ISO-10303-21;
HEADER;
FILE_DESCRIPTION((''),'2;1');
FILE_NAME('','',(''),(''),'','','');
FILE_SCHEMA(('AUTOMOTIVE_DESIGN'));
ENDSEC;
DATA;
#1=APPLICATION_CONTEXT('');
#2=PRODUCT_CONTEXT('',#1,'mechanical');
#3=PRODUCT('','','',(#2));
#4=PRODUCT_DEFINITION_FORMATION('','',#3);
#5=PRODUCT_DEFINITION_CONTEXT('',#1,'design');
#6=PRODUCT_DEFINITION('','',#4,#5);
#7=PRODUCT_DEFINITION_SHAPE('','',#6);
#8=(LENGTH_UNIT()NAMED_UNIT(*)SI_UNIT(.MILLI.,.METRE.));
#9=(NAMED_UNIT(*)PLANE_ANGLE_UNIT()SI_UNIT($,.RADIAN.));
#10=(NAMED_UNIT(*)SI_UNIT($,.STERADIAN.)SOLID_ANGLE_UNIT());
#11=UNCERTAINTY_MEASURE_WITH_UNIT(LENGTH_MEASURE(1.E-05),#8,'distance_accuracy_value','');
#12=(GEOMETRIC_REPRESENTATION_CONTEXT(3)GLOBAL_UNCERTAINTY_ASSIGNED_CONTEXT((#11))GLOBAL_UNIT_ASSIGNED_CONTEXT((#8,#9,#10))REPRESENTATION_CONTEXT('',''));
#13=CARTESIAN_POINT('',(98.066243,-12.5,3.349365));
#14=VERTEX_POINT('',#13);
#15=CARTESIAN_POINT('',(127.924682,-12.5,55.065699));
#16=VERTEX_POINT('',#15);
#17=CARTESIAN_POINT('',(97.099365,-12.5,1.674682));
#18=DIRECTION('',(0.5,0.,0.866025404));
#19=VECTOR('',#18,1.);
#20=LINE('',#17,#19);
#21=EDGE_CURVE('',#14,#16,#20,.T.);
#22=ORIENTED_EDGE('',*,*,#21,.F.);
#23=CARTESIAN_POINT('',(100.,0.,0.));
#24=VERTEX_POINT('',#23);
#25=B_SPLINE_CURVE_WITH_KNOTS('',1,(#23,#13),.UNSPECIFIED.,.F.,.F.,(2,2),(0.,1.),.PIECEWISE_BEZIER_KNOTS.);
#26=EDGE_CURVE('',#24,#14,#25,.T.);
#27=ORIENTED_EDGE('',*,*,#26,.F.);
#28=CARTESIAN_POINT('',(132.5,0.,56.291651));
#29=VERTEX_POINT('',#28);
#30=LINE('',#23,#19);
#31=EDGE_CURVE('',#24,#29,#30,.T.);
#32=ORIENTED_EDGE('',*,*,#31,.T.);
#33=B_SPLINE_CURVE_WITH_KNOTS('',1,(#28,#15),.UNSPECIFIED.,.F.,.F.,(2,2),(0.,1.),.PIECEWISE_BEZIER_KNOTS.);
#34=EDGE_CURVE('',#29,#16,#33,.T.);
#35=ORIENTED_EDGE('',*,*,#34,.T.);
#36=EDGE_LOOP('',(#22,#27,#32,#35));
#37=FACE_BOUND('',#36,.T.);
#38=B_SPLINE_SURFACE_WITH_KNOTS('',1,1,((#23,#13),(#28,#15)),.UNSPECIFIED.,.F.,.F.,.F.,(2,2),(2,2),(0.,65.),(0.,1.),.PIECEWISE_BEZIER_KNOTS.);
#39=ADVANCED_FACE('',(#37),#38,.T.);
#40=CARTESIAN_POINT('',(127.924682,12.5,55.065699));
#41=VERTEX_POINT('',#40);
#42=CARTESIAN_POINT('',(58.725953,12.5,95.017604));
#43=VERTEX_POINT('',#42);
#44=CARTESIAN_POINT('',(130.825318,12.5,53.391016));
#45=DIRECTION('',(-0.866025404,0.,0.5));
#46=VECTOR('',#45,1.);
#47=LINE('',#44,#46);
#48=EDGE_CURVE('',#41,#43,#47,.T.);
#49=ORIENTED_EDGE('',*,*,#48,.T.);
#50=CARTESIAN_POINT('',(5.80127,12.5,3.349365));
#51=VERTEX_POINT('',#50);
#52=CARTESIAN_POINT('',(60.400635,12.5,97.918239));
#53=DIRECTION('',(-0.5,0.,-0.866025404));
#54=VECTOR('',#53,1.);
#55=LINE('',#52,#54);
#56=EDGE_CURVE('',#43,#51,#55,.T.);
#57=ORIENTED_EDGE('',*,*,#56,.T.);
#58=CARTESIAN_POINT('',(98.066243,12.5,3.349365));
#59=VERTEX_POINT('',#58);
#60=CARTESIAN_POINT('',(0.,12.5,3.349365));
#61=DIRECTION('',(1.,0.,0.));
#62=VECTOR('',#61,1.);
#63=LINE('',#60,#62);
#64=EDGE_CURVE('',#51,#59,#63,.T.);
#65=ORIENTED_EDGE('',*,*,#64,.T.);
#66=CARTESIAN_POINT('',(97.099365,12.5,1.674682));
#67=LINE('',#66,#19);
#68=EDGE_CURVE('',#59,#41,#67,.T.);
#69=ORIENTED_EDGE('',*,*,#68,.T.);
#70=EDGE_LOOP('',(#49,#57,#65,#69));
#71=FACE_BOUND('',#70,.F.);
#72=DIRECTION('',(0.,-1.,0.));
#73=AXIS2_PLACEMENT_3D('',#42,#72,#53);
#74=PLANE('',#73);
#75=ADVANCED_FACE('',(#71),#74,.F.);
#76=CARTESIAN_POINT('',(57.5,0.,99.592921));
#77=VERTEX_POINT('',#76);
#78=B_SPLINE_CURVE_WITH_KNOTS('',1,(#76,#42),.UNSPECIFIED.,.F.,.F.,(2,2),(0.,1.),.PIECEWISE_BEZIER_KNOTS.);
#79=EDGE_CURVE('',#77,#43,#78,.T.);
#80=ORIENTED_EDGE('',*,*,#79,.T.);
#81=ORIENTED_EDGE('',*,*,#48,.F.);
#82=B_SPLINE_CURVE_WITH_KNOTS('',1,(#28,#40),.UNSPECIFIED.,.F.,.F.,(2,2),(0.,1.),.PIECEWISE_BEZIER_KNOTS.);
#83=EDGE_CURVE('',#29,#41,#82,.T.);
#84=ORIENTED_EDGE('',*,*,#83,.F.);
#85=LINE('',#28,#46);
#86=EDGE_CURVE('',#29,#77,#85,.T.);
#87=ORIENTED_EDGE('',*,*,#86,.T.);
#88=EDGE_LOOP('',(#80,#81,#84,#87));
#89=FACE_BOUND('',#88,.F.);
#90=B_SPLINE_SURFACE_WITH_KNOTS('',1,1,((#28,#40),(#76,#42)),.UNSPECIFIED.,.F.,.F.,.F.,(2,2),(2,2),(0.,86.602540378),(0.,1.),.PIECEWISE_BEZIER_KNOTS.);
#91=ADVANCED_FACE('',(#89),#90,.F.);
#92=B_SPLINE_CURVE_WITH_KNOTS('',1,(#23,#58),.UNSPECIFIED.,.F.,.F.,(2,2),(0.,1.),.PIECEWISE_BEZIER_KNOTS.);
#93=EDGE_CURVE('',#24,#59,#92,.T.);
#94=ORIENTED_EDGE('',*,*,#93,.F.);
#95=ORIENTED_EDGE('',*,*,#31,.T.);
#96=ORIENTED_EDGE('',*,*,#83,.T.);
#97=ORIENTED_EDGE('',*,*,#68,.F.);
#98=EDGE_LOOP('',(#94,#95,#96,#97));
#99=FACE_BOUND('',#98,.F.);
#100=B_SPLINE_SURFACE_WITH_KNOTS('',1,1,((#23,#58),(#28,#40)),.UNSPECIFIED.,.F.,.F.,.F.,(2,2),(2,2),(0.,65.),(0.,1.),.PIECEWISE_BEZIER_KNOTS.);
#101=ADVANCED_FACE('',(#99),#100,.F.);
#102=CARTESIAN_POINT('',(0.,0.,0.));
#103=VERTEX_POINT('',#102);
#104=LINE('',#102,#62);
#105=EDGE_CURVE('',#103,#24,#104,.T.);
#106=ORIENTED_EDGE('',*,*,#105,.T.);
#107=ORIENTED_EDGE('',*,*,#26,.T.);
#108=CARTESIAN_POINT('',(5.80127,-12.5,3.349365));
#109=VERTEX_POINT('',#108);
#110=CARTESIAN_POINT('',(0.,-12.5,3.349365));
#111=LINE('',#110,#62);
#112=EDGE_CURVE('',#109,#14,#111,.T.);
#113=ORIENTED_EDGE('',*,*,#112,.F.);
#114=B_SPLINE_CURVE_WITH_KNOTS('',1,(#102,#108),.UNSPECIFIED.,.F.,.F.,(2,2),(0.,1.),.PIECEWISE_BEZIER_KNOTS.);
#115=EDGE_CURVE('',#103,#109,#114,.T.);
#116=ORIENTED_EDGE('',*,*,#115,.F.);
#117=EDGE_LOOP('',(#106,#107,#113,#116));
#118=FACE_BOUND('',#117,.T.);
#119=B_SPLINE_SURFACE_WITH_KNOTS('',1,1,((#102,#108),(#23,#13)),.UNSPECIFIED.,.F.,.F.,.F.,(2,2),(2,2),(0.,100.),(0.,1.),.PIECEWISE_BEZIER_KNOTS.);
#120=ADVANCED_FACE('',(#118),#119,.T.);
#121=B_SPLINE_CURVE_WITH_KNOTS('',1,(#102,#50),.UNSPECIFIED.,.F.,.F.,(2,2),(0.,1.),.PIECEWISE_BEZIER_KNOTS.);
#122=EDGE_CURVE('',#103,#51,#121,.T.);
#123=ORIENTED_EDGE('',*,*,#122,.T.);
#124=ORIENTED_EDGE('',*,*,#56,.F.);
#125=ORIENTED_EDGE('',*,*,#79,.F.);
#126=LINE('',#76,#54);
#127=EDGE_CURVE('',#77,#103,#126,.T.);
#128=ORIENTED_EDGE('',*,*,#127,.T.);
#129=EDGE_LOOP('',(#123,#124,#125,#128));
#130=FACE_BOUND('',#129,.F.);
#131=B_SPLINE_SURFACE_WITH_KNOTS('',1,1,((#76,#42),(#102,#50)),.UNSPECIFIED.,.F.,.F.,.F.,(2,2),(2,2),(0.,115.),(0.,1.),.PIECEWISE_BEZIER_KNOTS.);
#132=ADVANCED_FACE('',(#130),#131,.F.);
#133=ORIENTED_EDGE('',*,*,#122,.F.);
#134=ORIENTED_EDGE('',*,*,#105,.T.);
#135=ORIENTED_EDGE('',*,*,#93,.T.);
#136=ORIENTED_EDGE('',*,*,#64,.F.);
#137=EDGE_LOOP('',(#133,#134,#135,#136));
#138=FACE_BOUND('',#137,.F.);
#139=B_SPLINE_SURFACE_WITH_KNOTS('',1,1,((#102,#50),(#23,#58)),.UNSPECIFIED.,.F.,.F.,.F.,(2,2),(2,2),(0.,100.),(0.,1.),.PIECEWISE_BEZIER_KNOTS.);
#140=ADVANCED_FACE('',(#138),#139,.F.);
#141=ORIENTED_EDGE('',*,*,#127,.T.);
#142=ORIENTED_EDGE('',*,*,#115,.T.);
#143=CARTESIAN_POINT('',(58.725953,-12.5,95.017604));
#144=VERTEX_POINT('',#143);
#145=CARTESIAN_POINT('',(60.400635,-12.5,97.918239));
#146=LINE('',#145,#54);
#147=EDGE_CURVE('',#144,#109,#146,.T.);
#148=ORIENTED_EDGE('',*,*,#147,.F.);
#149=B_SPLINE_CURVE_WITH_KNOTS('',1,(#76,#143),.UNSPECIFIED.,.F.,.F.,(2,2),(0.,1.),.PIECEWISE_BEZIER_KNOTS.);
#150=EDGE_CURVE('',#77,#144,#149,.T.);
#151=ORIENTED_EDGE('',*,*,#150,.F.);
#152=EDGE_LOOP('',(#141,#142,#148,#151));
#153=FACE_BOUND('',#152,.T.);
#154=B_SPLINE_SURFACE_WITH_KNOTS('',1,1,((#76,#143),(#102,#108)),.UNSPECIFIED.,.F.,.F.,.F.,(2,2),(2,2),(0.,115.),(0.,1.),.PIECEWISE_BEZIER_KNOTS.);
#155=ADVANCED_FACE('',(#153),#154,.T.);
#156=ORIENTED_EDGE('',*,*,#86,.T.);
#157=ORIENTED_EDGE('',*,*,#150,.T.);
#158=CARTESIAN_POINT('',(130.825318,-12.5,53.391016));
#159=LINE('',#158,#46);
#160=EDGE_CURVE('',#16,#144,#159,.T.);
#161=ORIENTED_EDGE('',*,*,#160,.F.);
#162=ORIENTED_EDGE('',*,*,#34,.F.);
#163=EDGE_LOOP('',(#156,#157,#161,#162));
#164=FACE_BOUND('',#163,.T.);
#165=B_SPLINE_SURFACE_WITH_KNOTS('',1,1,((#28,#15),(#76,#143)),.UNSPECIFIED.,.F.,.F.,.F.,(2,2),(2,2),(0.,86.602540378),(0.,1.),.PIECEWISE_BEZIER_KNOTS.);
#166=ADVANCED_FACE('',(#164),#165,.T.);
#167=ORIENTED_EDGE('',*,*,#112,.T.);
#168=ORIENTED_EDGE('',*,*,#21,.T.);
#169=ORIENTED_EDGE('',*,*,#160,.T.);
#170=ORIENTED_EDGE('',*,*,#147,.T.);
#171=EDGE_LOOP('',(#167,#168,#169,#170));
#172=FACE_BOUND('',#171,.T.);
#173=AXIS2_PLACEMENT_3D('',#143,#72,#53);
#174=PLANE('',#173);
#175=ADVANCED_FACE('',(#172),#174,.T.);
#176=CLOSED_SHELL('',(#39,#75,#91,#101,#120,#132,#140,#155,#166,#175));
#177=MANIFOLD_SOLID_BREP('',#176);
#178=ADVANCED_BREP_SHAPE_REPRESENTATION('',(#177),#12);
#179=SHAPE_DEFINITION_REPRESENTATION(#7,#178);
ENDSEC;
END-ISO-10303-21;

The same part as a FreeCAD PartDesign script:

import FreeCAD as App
import Part
import Sketcher

V = App.Vector
Q = App.Units.Quantity


def add_polygon(sketch, points):
    """Adds a closed chain of lines whose ends are joined by coincident constraints."""
    first, n = sketch.GeometryCount, len(points)
    for a, b in zip(points, points[1:] + points[:1]):
        sketch.addGeometry(Part.LineSegment(App.Vector(*a, 0), App.Vector(*b, 0)), False)
    for i in range(n):
        sketch.addConstraint(Sketcher.Constraint("Coincident", first + i, 2, first + (i + 1) % n, 1))

doc = App.newDocument("Part")
params = doc.addObject("Spreadsheet::Sheet", "Params")
for row, (alias, value) in enumerate([
    ("sketch1_width", "100 mm"),
    ("sketch1_length", "115 mm"),
    ("pad1_length", "25 mm"),
    ("pad1_taper", "-15 deg"),
], start=1):
    params.set(f"A{row}", alias)
    params.set(f"B{row}", "=" + value)
    params.setAlias(f"B{row}", alias)

body = doc.addObject("PartDesign::Body", "Body")

sketch1 = doc.addObject("Sketcher::SketchObject", "Sketch")
body.addObject(sketch1)
sketch1.AttachmentSupport = (doc.XZ_Plane, [""])
sketch1.MapMode = "FlatFace"
add_polygon(sketch1, [(58, 100), (0, 0), (100, 0), (132, 56)])
sketch1.addConstraint([
    Sketcher.Constraint("Horizontal", 1),
    Sketcher.Constraint("Coincident", 0, 2, -1, 1),
    Sketcher.Constraint("Parallel", 0, 2),
    Sketcher.Constraint("Perpendicular", 2, 3),
    Sketcher.Constraint("DistanceX", 1, 1, 1, 2, Q("100 mm")),
    Sketcher.Constraint("Angle", 0, Q("-120 deg")),
    Sketcher.Constraint("Distance", 0, Q("115 mm")),
])
sketch1.setExpression("Constraints[8]", "Params.sketch1_width")
sketch1.setExpression("Constraints[10]", "Params.sketch1_length")
pad1 = doc.addObject("PartDesign::Pad", "Pad")
body.addObject(pad1)
pad1.Profile = sketch1
pad1.setExpression("Length", "Params.pad1_length")
pad1.Midplane = True
pad1.setExpression("TaperAngle", "Params.pad1_taper")

doc.recompute()
